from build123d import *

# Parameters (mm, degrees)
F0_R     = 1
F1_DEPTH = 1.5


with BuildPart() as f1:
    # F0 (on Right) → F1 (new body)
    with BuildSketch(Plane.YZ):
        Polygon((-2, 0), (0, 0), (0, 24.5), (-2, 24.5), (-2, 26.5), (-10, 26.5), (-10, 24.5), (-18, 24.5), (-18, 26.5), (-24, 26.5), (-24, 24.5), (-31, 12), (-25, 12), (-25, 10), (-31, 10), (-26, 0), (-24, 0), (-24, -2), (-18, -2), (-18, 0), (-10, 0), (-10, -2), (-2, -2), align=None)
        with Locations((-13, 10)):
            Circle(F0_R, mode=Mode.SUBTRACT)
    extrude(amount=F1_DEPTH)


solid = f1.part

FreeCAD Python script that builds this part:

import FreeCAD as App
import Part
import Sketcher

V = App.Vector
Q = App.Units.Quantity


def add_polygon(sketch, points):
    """Adds a closed chain of lines whose ends are joined by coincident constraints."""
    first, n = sketch.GeometryCount, len(points)
    for a, b in zip(points, points[1:] + points[:1]):
        sketch.addGeometry(Part.LineSegment(App.Vector(*a, 0), App.Vector(*b, 0)), False)
    for i in range(n):
        sketch.addConstraint(Sketcher.Constraint("Coincident", first + i, 2, first + (i + 1) % n, 1))

doc = App.newDocument("Part")
body = doc.addObject("PartDesign::Body", "Body")

# Sketch on YZ plane
sketch1 = body.newObject("Sketcher::SketchObject", "Sketch")
sketch1.AttachmentSupport = (doc.getObject("YZ_Plane"), [""])
sketch1.MapMode = "FlatFace"
add_polygon(sketch1, [(-2, 0), (0, 0), (0, 24.5), (-2, 24.5), (-2, 26.5), (-10, 26.5), (-10, 24.5), (-18, 24.5), (-18, 26.5), (-24, 26.5), (-24, 24.5), (-31, 12), (-25, 12), (-25, 10), (-31, 10), (-26, 0), (-24, 0), (-24, -2), (-18, -2), (-18, 0), (-10, 0), (-10, -2), (-2, -2)])  # lines 0-22
sketch1.addGeometry(Part.Circle(V(-13, 10, 0), V(0, 0, 1), 1), False)  # 23
sketch1.addConstraint([
    Sketcher.Constraint("Horizontal", 0),
    Sketcher.Constraint("Vertical", 1),
    Sketcher.Constraint("Horizontal", 2),
    Sketcher.Constraint("Vertical", 3),
    Sketcher.Constraint("Horizontal", 4),
    Sketcher.Constraint("Vertical", 5),
    Sketcher.Constraint("Horizontal", 6),
    Sketcher.Constraint("Vertical", 7),
    Sketcher.Constraint("Horizontal", 8),
    Sketcher.Constraint("Vertical", 9),
    Sketcher.Constraint("Horizontal", 11),
    Sketcher.Constraint("Vertical", 12),
    Sketcher.Constraint("Horizontal", 13),
    Sketcher.Constraint("Horizontal", 15),
    Sketcher.Constraint("Vertical", 16),
    Sketcher.Constraint("Horizontal", 17),
    Sketcher.Constraint("Vertical", 18),
    Sketcher.Constraint("Horizontal", 19),
    Sketcher.Constraint("Vertical", 20),
    Sketcher.Constraint("Horizontal", 21),
    Sketcher.Constraint("Vertical", 22),
    Sketcher.Constraint("Coincident", 0, 2, -1, 1),
    Sketcher.Constraint("PointOnObject", 14, 2, -1),
    Sketcher.Constraint("PointOnObject", 18, 2, -1),
    Sketcher.Constraint("Horizontal", 2, 2, 5, 2),
    Sketcher.Constraint("Horizontal", 4, 2, 7, 2),
    Sketcher.Constraint("Horizontal", 6, 2, 9, 2),
    Sketcher.Constraint("Horizontal", 23, 3, 12, 2),
    Sketcher.Constraint("Horizontal", 17, 2, 20, 2),
    Sketcher.Constraint("Vertical", 10, 2, 13, 2),
    Sketcher.Constraint("Vertical", 9, 2, 15, 2),
    Sketcher.Constraint("Vertical", 7, 2, 17, 2),
    Sketcher.Constraint("Vertical", 5, 2, 19, 2),
    Sketcher.Constraint("Vertical", 3, 2, 21, 2),
    Sketcher.Constraint("Equal", 4, 6),
    Sketcher.Constraint("Equal", 8, 11),
    Sketcher.Constraint("Equal", 2, 15),
    Sketcher.Constraint("Equal", 15, 3),
    Sketcher.Constraint("Equal", 9, 12),
    Sketcher.Constraint("Equal", 12, 16),
    Sketcher.Constraint("Diameter", 23, Q("2 mm")),
    Sketcher.Constraint("DistanceX", 0, 1, 0, 2, Q("2 mm")),
    Sketcher.Constraint("DistanceX", 4, 2, 4, 1, Q("8 mm")),
    Sketcher.Constraint("DistanceX", 8, 2, 8, 1, Q("6 mm")),
    Sketcher.Constraint("DistanceY", 1, 1, 1, 2, Q("24.5 mm")),
    Sketcher.Constraint("DistanceX", 23, 3, -1, 1, Q("13 mm")),
    Sketcher.Constraint("DistanceY", -1, 1, 23, 3, Q("10 mm")),
    Sketcher.Constraint("DistanceX", 10, 2, -1, 1, Q("31 mm")),
])
pad1 = body.newObject("PartDesign::Pad", "Pad")
pad1.Profile = sketch1
pad1.Length = 1.5

doc.recompute()
